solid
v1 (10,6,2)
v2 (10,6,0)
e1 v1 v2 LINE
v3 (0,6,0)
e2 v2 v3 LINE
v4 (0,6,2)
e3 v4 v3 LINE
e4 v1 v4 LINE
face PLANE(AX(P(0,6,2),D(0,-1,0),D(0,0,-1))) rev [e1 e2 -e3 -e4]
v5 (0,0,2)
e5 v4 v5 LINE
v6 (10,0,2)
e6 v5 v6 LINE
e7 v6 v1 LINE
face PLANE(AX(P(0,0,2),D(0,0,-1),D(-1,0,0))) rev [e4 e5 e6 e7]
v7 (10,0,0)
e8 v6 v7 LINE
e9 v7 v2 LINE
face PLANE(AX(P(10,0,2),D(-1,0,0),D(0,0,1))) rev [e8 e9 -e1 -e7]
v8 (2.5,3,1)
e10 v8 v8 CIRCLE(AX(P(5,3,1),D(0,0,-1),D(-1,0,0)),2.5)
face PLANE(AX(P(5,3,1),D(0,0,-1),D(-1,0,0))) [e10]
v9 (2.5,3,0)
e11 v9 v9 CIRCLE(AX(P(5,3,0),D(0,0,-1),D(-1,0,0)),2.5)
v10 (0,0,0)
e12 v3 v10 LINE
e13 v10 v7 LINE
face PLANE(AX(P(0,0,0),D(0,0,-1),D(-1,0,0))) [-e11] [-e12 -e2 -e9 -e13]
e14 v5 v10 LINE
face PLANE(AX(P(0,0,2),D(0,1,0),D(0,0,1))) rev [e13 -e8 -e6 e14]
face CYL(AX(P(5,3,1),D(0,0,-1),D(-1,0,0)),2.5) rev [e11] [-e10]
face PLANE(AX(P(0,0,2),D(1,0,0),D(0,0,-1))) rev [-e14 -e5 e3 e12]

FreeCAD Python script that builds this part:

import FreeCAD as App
import Part
import Sketcher
Q = App.Units.Quantity


def add_polygon(sketch, points):
    """Adds a closed chain of lines whose ends are joined by coincident constraints."""
    first, n = sketch.GeometryCount, len(points)
    for a, b in zip(points, points[1:] + points[:1]):
        sketch.addGeometry(Part.LineSegment(App.Vector(*a, 0), App.Vector(*b, 0)), False)
    for i in range(n):
        sketch.addConstraint(Sketcher.Constraint("Coincident", first + i, 2, first + (i + 1) % n, 1))

doc = App.newDocument("Part")
body = doc.addObject("PartDesign::Body", "Body")

sketch1 = body.newObject("Sketcher::SketchObject", "Sketch")
sketch1.AttachmentSupport = (doc.getObject("XY_Plane"), [""])
sketch1.MapMode = "FlatFace"
add_polygon(sketch1, [(0, 6), (0, 0), (10, 0), (10, 6)])
sketch1.addConstraint([
    Sketcher.Constraint("Vertical", 0),
    Sketcher.Constraint("Horizontal", 1),
    Sketcher.Constraint("Vertical", 2),
    Sketcher.Constraint("Horizontal", 3),
    Sketcher.Constraint("Coincident", 0, 2, -1, 1),
    Sketcher.Constraint("DistanceX", 1, 1, 1, 2, Q("10 mm")),
    Sketcher.Constraint("DistanceY", 0, 2, 0, 1, Q("6 mm")),
])
pad1 = body.newObject("PartDesign::Pad", "Pad")
pad1.Profile = sketch1
pad1.Length = 2

sketch2 = body.newObject("Sketcher::SketchObject", "Sketch001")
sketch2.AttachmentSupport = (doc.getObject("XY_Plane"), [""])
sketch2.MapMode = "FlatFace"
sketch2.addGeometry(Part.Circle(App.Vector(5, 3, 0), App.Vector(0, 0, 1), 2.5), False)
sketch2.addConstraint([
    Sketcher.Constraint("Diameter", 0, Q("5 mm")),
    Sketcher.Constraint("DistanceX", -1, 1, 0, 3, Q("5 mm")),
    Sketcher.Constraint("DistanceY", -1, 1, 0, 3, Q("3 mm")),
])
pocket1 = body.newObject("PartDesign::Pocket", "Pocket")
pocket1.Profile = sketch2
pocket1.Length = 1
pocket1.Reversed = True

doc.recompute()
